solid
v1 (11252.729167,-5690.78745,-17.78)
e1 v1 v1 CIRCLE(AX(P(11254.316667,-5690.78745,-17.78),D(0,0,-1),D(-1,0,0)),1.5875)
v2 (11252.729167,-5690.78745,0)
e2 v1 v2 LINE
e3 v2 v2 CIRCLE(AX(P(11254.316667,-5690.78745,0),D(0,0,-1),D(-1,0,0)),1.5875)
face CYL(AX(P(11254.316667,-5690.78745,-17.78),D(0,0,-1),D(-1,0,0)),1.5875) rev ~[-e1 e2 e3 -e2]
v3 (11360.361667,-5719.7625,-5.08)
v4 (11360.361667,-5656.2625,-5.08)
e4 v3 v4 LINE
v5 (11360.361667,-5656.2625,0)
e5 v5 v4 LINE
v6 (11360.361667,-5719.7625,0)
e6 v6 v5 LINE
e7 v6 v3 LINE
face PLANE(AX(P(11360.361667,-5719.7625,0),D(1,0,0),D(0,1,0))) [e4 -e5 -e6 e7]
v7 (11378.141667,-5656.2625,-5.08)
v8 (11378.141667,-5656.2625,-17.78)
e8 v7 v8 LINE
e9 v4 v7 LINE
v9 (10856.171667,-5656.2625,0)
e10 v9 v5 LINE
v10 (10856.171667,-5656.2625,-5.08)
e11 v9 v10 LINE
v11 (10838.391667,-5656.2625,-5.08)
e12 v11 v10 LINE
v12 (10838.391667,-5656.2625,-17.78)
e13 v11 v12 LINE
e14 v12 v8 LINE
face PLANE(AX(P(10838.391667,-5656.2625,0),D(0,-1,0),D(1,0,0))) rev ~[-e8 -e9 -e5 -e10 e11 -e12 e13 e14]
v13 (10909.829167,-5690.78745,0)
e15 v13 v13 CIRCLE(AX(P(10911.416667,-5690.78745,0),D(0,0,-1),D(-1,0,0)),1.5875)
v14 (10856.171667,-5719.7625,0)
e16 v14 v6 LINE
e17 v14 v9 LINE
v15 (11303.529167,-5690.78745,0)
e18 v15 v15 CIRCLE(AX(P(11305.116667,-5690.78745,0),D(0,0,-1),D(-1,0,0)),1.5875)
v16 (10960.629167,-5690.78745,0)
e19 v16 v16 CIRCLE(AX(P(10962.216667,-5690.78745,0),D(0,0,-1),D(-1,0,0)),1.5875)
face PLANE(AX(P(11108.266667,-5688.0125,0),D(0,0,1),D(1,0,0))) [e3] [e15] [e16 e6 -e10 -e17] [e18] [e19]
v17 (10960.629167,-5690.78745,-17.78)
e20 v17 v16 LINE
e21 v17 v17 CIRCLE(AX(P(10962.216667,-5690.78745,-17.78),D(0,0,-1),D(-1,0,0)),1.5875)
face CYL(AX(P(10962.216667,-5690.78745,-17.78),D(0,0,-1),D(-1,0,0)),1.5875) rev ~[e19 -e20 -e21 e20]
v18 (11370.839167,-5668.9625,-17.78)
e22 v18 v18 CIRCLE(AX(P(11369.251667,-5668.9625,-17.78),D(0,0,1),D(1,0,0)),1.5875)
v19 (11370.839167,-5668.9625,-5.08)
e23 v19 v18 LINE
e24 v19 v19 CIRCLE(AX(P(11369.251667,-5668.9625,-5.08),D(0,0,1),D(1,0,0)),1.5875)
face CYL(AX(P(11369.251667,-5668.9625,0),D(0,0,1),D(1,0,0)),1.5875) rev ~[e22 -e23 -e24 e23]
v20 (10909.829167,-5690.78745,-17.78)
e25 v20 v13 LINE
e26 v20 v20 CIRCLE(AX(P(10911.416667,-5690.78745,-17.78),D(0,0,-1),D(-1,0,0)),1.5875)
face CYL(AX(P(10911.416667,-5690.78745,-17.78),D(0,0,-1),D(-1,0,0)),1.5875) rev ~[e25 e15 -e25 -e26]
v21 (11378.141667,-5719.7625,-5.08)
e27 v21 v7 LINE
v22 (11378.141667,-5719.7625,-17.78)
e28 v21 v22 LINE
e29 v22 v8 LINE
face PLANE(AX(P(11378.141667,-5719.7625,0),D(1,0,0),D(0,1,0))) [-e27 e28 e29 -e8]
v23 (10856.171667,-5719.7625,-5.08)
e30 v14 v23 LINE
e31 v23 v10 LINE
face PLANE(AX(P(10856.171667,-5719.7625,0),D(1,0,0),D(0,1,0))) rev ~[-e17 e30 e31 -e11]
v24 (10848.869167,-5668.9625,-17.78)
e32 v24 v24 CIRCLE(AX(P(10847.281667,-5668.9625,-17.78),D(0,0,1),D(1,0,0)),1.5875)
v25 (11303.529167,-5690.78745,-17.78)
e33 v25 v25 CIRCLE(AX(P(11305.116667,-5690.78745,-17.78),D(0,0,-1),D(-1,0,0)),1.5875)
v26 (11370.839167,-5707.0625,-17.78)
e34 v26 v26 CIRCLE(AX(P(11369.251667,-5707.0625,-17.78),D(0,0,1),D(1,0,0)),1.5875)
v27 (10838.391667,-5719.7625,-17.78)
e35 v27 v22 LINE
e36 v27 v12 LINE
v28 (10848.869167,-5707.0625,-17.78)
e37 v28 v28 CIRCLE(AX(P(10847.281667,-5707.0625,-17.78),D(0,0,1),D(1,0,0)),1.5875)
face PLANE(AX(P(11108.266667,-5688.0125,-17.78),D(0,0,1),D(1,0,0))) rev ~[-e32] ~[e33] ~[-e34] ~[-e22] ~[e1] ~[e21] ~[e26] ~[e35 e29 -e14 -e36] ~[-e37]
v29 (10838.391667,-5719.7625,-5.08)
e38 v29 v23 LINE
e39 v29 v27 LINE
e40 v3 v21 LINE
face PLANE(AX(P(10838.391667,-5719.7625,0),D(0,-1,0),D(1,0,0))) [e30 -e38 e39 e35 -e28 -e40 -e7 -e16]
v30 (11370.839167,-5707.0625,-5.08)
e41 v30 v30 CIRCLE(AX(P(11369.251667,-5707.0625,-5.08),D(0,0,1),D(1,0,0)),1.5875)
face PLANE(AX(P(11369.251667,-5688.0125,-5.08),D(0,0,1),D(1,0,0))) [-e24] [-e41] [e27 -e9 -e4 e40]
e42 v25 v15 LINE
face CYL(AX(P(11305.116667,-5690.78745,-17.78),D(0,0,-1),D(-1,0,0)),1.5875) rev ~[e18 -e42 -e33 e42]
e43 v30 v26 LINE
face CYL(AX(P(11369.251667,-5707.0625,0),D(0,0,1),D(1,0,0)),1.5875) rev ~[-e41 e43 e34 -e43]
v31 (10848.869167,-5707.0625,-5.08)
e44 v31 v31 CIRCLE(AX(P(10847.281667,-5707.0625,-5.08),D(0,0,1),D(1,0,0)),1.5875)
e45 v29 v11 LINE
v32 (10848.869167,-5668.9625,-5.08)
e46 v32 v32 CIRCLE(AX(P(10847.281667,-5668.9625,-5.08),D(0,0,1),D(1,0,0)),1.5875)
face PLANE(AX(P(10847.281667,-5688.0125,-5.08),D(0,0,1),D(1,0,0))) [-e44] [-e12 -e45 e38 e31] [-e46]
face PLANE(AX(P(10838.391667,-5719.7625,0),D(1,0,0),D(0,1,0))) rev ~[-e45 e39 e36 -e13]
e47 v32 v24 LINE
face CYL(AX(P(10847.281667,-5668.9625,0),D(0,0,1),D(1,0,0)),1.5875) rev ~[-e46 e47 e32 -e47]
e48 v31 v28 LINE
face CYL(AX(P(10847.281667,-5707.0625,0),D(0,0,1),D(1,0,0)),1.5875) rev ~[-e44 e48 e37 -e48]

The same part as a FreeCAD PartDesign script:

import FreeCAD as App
import Part
import Sketcher
Q = App.Units.Quantity

doc = App.newDocument("Part")
body = doc.addObject("PartDesign::Body", "Body")

# Sketch on XY plane
sketch1 = doc.addObject("Sketcher::SketchObject", "Sketch")
body.addObject(sketch1)
sketch1.AttachmentSupport = (doc.XY_Plane, [""])
sketch1.MapMode = "FlatFace"
sketch1.addGeometry([
    Part.LineSegment(App.Vector(10838, -5656, 0), App.Vector(10838, -5720, 0)),
    Part.LineSegment(App.Vector(10838, -5720, 0), App.Vector(11378, -5720, 0)),
    Part.LineSegment(App.Vector(11378, -5720, 0), App.Vector(11378, -5656, 0)),
    Part.LineSegment(App.Vector(11378, -5656, 0), App.Vector(10838, -5656, 0)),
], False)
sketch1.addConstraint([
    Sketcher.Constraint("Coincident", 0, 2, 1, 1),
    Sketcher.Constraint("Coincident", 1, 2, 2, 1),
    Sketcher.Constraint("Coincident", 2, 2, 3, 1),
    Sketcher.Constraint("Coincident", 3, 2, 0, 1),
    Sketcher.Constraint("Vertical", 0),
    Sketcher.Constraint("Horizontal", 1),
    Sketcher.Constraint("Vertical", 2),
    Sketcher.Constraint("Horizontal", 3),
    Sketcher.Constraint("DistanceY", 0, 2, 0, 1, Q("2.5 in")),
    Sketcher.Constraint("DistanceX", 1, 1, 1, 2, Q("21.25 in")),
    Sketcher.Constraint("DistanceY", 0, 2, -1, 1, Q("225.1875 in")),
    Sketcher.Constraint("DistanceX", -1, 1, 0, 2, Q("10838.391667 mm")),
])
pad1 = doc.addObject("PartDesign::Pad", "Pad")
body.addObject(pad1)
pad1.Profile = sketch1
pad1.Length = Q("0.7 in")
pad1.Reversed = True

# Sketch on XY plane
sketch2 = doc.addObject("Sketcher::SketchObject", "Sketch001")
body.addObject(sketch2)
sketch2.AttachmentSupport = (doc.XY_Plane, [""])
sketch2.MapMode = "FlatFace"
sketch2.addGeometry([
    Part.LineSegment(App.Vector(11360, -5656, 0), App.Vector(11360, -5720, 0)),  # 0
    Part.LineSegment(App.Vector(11360, -5720, 0), App.Vector(11378, -5720, 0)),  # 1
    Part.LineSegment(App.Vector(11378, -5720, 0), App.Vector(11378, -5656, 0)),  # 2
    Part.LineSegment(App.Vector(11378, -5656, 0), App.Vector(11360, -5656, 0)),  # 3
    Part.LineSegment(App.Vector(10838, -5656, 0), App.Vector(10838, -5720, 0)),  # 4
    Part.LineSegment(App.Vector(10838, -5720, 0), App.Vector(10856, -5720, 0)),  # 5
    Part.LineSegment(App.Vector(10856, -5720, 0), App.Vector(10856, -5656, 0)),  # 6
    Part.LineSegment(App.Vector(10856, -5656, 0), App.Vector(10838, -5656, 0)),  # 7
], False)
sketch2.addConstraint([
    Sketcher.Constraint("Coincident", 0, 2, 1, 1),
    Sketcher.Constraint("Coincident", 1, 2, 2, 1),
    Sketcher.Constraint("Coincident", 2, 2, 3, 1),
    Sketcher.Constraint("Coincident", 3, 2, 0, 1),
    Sketcher.Constraint("Coincident", 4, 2, 5, 1),
    Sketcher.Constraint("Coincident", 5, 2, 6, 1),
    Sketcher.Constraint("Coincident", 6, 2, 7, 1),
    Sketcher.Constraint("Coincident", 7, 2, 4, 1),
    Sketcher.Constraint("Vertical", 0),
    Sketcher.Constraint("Horizontal", 1),
    Sketcher.Constraint("Vertical", 2),
    Sketcher.Constraint("Horizontal", 3),
    Sketcher.Constraint("Vertical", 4),
    Sketcher.Constraint("Horizontal", 5),
    Sketcher.Constraint("Vertical", 6),
    Sketcher.Constraint("Horizontal", 7),
    Sketcher.Constraint("Horizontal", 1, 2, 4, 2),
    Sketcher.Constraint("Horizontal", 3, 2, 6, 2),
    Sketcher.Constraint("Equal", 3, 5),
    Sketcher.Constraint("DistanceX", 1, 1, 1, 2, Q("0.7 in")),
    Sketcher.Constraint("DistanceY", 0, 2, 0, 1, Q("2.5 in")),
    Sketcher.Constraint("DistanceX", 4, 2, 0, 2, Q("20.55 in")),
    Sketcher.Constraint("DistanceY", 0, 2, -1, 1, Q("225.1875 in")),
    Sketcher.Constraint("DistanceX", -1, 1, 0, 2, Q("11360.361667 mm")),
])
pocket1 = doc.addObject("PartDesign::Pocket", "Pocket")
body.addObject(pocket1)
pocket1.Profile = sketch2
pocket1.Length = Q("0.2 in")

# Sketch on XY plane
sketch3 = doc.addObject("Sketcher::SketchObject", "Sketch002")
body.addObject(sketch3)
sketch3.AttachmentSupport = (doc.XY_Plane, [""])
sketch3.MapMode = "FlatFace"
sketch3.addGeometry([
    Part.Circle(App.Vector(10847.3, -5669, 0), App.Vector(0, 0, 1), 1.6),
    Part.Circle(App.Vector(10847.3, -5707.1, 0), App.Vector(0, 0, 1), 1.6),
    Part.Circle(App.Vector(11369.3, -5707.1, 0), App.Vector(0, 0, 1), 1.6),
    Part.Circle(App.Vector(11369.3, -5669, 0), App.Vector(0, 0, 1), 1.6),
], False)
sketch3.addConstraint([
    Sketcher.Constraint("Equal", 0, 1),
    Sketcher.Constraint("Equal", 1, 2),
    Sketcher.Constraint("Equal", 2, 3),
    Sketcher.Constraint("Horizontal", 1, 3, 2, 3),
    Sketcher.Constraint("Horizontal", 0, 3, 3, 3),
    Sketcher.Constraint("Vertical", 0, 3, 1, 3),
    Sketcher.Constraint("Vertical", 2, 3, 3, 3),
    Sketcher.Constraint("Diameter", 0, Q("0.125 in")),
    Sketcher.Constraint("DistanceY", 1, 3, 0, 3, Q("1.5 in")),
    Sketcher.Constraint("DistanceX", 1, 3, 2, 3, Q("20.55 in")),
    Sketcher.Constraint("DistanceY", 0, 3, -1, 1, Q("223.1875 in")),
    Sketcher.Constraint("DistanceX", -1, 1, 0, 3, Q("10847.281667 mm")),
])
pocket2 = doc.addObject("PartDesign::Pocket", "Pocket001")
body.addObject(pocket2)
pocket2.Profile = sketch3
pocket2.Length = Q("0.7 in")

# Sketch on XY plane
sketch4 = doc.addObject("Sketcher::SketchObject", "Sketch003")
body.addObject(sketch4)
sketch4.AttachmentSupport = (doc.XY_Plane, [""])
sketch4.MapMode = "FlatFace"
sketch4.AttachmentOffset = App.Placement(App.Vector(0, 0, -0.7 * 25.4), App.Rotation())
sketch4.addGeometry([
    Part.Circle(App.Vector(10911.4, -5690.8, 0), App.Vector(0, 0, 1), 1.6),
    Part.Circle(App.Vector(10962.2, -5690.8, 0), App.Vector(0, 0, 1), 1.6),
    Part.Circle(App.Vector(11254.3, -5690.8, 0), App.Vector(0, 0, 1), 1.6),
    Part.Circle(App.Vector(11305.1, -5690.8, 0), App.Vector(0, 0, 1), 1.6),
], False)
sketch4.addConstraint([
    Sketcher.Constraint("Equal", 0, 1),
    Sketcher.Constraint("Equal", 1, 2),
    Sketcher.Constraint("Equal", 2, 3),
    Sketcher.Constraint("Horizontal", 0, 3, 1, 3),
    Sketcher.Constraint("Horizontal", 1, 3, 2, 3),
    Sketcher.Constraint("Horizontal", 2, 3, 3, 3),
    Sketcher.Constraint("Diameter", 0, Q("0.125 in")),
    Sketcher.Constraint("DistanceX", 0, 3, 1, 3, Q("2 in")),
    Sketcher.Constraint("DistanceX", 2, 3, 3, 3, Q("2 in")),
    Sketcher.Constraint("DistanceX", 1, 3, 2, 3, Q("11.5 in")),
    Sketcher.Constraint("DistanceY", 0, 3, -1, 1, Q("5690.78745 mm")),
    Sketcher.Constraint("DistanceX", -1, 1, 0, 3, Q("10911.416667 mm")),
])
pocket3 = doc.addObject("PartDesign::Pocket", "Pocket002")
body.addObject(pocket3)
pocket3.Profile = sketch4
pocket3.Length = Q("0.7 in")
pocket3.Reversed = True

doc.recompute()
